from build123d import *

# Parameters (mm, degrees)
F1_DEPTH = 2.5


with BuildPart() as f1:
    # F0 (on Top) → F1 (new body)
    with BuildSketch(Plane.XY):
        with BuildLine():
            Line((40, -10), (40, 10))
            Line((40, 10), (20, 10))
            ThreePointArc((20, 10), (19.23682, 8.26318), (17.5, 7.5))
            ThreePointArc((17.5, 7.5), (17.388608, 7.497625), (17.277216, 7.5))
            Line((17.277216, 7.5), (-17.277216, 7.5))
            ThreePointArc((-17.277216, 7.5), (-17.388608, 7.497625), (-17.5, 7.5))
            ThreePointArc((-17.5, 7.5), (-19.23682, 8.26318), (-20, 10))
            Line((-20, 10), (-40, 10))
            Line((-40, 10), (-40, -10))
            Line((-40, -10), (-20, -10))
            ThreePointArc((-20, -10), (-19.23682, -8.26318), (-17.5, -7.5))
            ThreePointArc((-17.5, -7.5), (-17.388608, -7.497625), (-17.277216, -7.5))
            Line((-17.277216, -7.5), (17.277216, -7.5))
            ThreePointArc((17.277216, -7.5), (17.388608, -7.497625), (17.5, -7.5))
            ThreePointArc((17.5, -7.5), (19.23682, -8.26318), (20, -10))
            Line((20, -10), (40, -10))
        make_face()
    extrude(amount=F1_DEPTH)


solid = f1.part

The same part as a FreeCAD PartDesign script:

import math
import FreeCAD as App
import Part
import Sketcher

doc = App.newDocument("Part")
params = doc.addObject("Spreadsheet::Sheet", "Params")
for row, (alias, value) in enumerate([
    ("sketch1_width", "20 mm"),
    ("pad1_length", "2.5 mm"),
], start=1):
    params.set(f"A{row}", alias)
    params.set(f"B{row}", "=" + value)
    params.setAlias(f"B{row}", alias)

body = doc.addObject("PartDesign::Body", "Body")

# Sketch on XY plane
sketch1 = body.newObject("Sketcher::SketchObject", "Sketch")
sketch1.AttachmentSupport = (doc.getObject("XY_Plane"), [""])
sketch1.MapMode = "FlatFace"
sketch1.addGeometry([
    Part.LineSegment(App.Vector(40, -10, 0), App.Vector(40, 10, 0)),  # 0
    Part.LineSegment(App.Vector(40, 10, 0), App.Vector(20, 10, 0)),  # 1
    Part.ArcOfCircle(Part.Circle(App.Vector(17.39, 10.11, 0), App.Vector(0, 0, 1), 2.61), math.radians(-88), math.radians(-2)),  # 2
    Part.ArcOfCircle(Part.Circle(App.Vector(17.39, 10.11, 0), App.Vector(0, 0, 1), 2.61), math.radians(-92.44), math.radians(-87.56)),  # 3
    Part.LineSegment(App.Vector(17.28, 7.5, 0), App.Vector(-17.28, 7.5, 0)),  # 4
    Part.ArcOfCircle(Part.Circle(App.Vector(-17.39, 10.11, 0), App.Vector(0, 0, 1), 2.61), math.radians(-92.44), math.radians(-87.56)),  # 5
    Part.ArcOfCircle(Part.Circle(App.Vector(-17.39, 10.11, 0), App.Vector(0, 0, 1), 2.61), math.radians(-178), math.radians(-92)),  # 6
    Part.LineSegment(App.Vector(-20, 10, 0), App.Vector(-40, 10, 0)),  # 7
    Part.LineSegment(App.Vector(-40, 10, 0), App.Vector(-40, -10, 0)),  # 8
    Part.LineSegment(App.Vector(-40, -10, 0), App.Vector(-20, -10, 0)),  # 9
    Part.ArcOfCircle(Part.Circle(App.Vector(-17.39, -10.11, 0), App.Vector(0, 0, 1), 2.61), math.radians(92), math.radians(178)),  # 10
    Part.ArcOfCircle(Part.Circle(App.Vector(-17.39, -10.11, 0), App.Vector(0, 0, 1), 2.61), math.radians(87.56), math.radians(92.44)),  # 11
    Part.LineSegment(App.Vector(-17.28, -7.5, 0), App.Vector(17.28, -7.5, 0)),  # 12
    Part.ArcOfCircle(Part.Circle(App.Vector(17.39, -10.11, 0), App.Vector(0, 0, 1), 2.61), math.radians(87.56), math.radians(92.44)),  # 13
    Part.ArcOfCircle(Part.Circle(App.Vector(17.39, -10.11, 0), App.Vector(0, 0, 1), 2.61), math.radians(2), math.radians(88)),  # 14
    Part.LineSegment(App.Vector(20, -10, 0), App.Vector(40, -10, 0)),  # 15
], False)
sketch1.addConstraint([
    Sketcher.Constraint("Coincident", 0, 2, 1, 1),
    Sketcher.Constraint("Coincident", 1, 2, 2, 2),
    Sketcher.Constraint("Coincident", 2, 1, 3, 2),
    Sketcher.Constraint("Coincident", 3, 1, 4, 1),
    Sketcher.Constraint("Coincident", 4, 2, 5, 2),
    Sketcher.Constraint("Coincident", 5, 1, 6, 2),
    Sketcher.Constraint("Coincident", 6, 1, 7, 1),
    Sketcher.Constraint("Coincident", 7, 2, 8, 1),
    Sketcher.Constraint("Coincident", 8, 2, 9, 1),
    Sketcher.Constraint("Coincident", 9, 2, 10, 2),
    Sketcher.Constraint("Coincident", 10, 1, 11, 2),
    Sketcher.Constraint("Coincident", 11, 1, 12, 1),
    Sketcher.Constraint("Coincident", 12, 2, 13, 2),
    Sketcher.Constraint("Coincident", 13, 1, 14, 2),
    Sketcher.Constraint("Coincident", 14, 1, 15, 1),
    Sketcher.Constraint("Coincident", 15, 2, 0, 1),
    Sketcher.Constraint("Vertical", 0),
    Sketcher.Constraint("Horizontal", 1),
    Sketcher.Constraint("Horizontal", 4),
    Sketcher.Constraint("Horizontal", 7),
    Sketcher.Constraint("Vertical", 8),
    Sketcher.Constraint("Horizontal", 9),
    Sketcher.Constraint("Horizontal", 12),
    Sketcher.Constraint("Horizontal", 15),
    Sketcher.Constraint("Equal", 3, 5),
    Sketcher.Constraint("Equal", 2, 6),
    Sketcher.Constraint("Equal", 6, 10),
    Sketcher.Constraint("Equal", 5, 11),
    Sketcher.Constraint("Equal", 11, 13),
    Sketcher.Constraint("Equal", 10, 14),
    Sketcher.Constraint("Symmetric", 2, 3, 10, 3, -1, 1),
    Sketcher.Constraint("Symmetric", 5, 3, 13, 3, -1, 1),
    Sketcher.Constraint("Symmetric", 0, 2, 8, 2, -1, 1),
    Sketcher.Constraint("Symmetric", 3, 1, 11, 1, -1, 1),
    Sketcher.Constraint("Symmetric", 6, 1, 14, 1, -1, 1),
    Sketcher.Constraint("Symmetric", 3, 3, 5, 3, -2),
    Sketcher.Constraint("Symmetric", 1, 2, 6, 1, -2),
    Sketcher.Constraint("Horizontal", 2, 1, 3, 1),
    Sketcher.Constraint("Horizontal", 4, 2, 5, 1),
    Sketcher.Constraint("Horizontal", 10, 1, 11, 1),
    Sketcher.Constraint("Horizontal", 12, 2, 13, 1),
    Sketcher.Constraint("Vertical", 2, 3, 3, 3),
    Sketcher.Constraint("Equal", 15, 0),
    Sketcher.Constraint("DistanceX", 1, 2, 1, 1, 20.0),
    Sketcher.Constraint("DistanceX", -1, 1, 0, 2, 40.0),
    Sketcher.Constraint("DistanceY", 10, 1, 5, 1, 15.0),
    Sketcher.Constraint("DistanceX", -1, 1, 2, 1, 17.5),
    Sketcher.Constraint("Radius", 2, 2.613767),
    Sketcher.Constraint("Radius", 3, 2.613435),
])
sketch1.setExpression("Constraints[43]", "Params.sketch1_width")
pad1 = body.newObject("PartDesign::Pad", "Pad")
pad1.Profile = sketch1
pad1.setExpression("Length", "Params.pad1_length")

doc.recompute()
